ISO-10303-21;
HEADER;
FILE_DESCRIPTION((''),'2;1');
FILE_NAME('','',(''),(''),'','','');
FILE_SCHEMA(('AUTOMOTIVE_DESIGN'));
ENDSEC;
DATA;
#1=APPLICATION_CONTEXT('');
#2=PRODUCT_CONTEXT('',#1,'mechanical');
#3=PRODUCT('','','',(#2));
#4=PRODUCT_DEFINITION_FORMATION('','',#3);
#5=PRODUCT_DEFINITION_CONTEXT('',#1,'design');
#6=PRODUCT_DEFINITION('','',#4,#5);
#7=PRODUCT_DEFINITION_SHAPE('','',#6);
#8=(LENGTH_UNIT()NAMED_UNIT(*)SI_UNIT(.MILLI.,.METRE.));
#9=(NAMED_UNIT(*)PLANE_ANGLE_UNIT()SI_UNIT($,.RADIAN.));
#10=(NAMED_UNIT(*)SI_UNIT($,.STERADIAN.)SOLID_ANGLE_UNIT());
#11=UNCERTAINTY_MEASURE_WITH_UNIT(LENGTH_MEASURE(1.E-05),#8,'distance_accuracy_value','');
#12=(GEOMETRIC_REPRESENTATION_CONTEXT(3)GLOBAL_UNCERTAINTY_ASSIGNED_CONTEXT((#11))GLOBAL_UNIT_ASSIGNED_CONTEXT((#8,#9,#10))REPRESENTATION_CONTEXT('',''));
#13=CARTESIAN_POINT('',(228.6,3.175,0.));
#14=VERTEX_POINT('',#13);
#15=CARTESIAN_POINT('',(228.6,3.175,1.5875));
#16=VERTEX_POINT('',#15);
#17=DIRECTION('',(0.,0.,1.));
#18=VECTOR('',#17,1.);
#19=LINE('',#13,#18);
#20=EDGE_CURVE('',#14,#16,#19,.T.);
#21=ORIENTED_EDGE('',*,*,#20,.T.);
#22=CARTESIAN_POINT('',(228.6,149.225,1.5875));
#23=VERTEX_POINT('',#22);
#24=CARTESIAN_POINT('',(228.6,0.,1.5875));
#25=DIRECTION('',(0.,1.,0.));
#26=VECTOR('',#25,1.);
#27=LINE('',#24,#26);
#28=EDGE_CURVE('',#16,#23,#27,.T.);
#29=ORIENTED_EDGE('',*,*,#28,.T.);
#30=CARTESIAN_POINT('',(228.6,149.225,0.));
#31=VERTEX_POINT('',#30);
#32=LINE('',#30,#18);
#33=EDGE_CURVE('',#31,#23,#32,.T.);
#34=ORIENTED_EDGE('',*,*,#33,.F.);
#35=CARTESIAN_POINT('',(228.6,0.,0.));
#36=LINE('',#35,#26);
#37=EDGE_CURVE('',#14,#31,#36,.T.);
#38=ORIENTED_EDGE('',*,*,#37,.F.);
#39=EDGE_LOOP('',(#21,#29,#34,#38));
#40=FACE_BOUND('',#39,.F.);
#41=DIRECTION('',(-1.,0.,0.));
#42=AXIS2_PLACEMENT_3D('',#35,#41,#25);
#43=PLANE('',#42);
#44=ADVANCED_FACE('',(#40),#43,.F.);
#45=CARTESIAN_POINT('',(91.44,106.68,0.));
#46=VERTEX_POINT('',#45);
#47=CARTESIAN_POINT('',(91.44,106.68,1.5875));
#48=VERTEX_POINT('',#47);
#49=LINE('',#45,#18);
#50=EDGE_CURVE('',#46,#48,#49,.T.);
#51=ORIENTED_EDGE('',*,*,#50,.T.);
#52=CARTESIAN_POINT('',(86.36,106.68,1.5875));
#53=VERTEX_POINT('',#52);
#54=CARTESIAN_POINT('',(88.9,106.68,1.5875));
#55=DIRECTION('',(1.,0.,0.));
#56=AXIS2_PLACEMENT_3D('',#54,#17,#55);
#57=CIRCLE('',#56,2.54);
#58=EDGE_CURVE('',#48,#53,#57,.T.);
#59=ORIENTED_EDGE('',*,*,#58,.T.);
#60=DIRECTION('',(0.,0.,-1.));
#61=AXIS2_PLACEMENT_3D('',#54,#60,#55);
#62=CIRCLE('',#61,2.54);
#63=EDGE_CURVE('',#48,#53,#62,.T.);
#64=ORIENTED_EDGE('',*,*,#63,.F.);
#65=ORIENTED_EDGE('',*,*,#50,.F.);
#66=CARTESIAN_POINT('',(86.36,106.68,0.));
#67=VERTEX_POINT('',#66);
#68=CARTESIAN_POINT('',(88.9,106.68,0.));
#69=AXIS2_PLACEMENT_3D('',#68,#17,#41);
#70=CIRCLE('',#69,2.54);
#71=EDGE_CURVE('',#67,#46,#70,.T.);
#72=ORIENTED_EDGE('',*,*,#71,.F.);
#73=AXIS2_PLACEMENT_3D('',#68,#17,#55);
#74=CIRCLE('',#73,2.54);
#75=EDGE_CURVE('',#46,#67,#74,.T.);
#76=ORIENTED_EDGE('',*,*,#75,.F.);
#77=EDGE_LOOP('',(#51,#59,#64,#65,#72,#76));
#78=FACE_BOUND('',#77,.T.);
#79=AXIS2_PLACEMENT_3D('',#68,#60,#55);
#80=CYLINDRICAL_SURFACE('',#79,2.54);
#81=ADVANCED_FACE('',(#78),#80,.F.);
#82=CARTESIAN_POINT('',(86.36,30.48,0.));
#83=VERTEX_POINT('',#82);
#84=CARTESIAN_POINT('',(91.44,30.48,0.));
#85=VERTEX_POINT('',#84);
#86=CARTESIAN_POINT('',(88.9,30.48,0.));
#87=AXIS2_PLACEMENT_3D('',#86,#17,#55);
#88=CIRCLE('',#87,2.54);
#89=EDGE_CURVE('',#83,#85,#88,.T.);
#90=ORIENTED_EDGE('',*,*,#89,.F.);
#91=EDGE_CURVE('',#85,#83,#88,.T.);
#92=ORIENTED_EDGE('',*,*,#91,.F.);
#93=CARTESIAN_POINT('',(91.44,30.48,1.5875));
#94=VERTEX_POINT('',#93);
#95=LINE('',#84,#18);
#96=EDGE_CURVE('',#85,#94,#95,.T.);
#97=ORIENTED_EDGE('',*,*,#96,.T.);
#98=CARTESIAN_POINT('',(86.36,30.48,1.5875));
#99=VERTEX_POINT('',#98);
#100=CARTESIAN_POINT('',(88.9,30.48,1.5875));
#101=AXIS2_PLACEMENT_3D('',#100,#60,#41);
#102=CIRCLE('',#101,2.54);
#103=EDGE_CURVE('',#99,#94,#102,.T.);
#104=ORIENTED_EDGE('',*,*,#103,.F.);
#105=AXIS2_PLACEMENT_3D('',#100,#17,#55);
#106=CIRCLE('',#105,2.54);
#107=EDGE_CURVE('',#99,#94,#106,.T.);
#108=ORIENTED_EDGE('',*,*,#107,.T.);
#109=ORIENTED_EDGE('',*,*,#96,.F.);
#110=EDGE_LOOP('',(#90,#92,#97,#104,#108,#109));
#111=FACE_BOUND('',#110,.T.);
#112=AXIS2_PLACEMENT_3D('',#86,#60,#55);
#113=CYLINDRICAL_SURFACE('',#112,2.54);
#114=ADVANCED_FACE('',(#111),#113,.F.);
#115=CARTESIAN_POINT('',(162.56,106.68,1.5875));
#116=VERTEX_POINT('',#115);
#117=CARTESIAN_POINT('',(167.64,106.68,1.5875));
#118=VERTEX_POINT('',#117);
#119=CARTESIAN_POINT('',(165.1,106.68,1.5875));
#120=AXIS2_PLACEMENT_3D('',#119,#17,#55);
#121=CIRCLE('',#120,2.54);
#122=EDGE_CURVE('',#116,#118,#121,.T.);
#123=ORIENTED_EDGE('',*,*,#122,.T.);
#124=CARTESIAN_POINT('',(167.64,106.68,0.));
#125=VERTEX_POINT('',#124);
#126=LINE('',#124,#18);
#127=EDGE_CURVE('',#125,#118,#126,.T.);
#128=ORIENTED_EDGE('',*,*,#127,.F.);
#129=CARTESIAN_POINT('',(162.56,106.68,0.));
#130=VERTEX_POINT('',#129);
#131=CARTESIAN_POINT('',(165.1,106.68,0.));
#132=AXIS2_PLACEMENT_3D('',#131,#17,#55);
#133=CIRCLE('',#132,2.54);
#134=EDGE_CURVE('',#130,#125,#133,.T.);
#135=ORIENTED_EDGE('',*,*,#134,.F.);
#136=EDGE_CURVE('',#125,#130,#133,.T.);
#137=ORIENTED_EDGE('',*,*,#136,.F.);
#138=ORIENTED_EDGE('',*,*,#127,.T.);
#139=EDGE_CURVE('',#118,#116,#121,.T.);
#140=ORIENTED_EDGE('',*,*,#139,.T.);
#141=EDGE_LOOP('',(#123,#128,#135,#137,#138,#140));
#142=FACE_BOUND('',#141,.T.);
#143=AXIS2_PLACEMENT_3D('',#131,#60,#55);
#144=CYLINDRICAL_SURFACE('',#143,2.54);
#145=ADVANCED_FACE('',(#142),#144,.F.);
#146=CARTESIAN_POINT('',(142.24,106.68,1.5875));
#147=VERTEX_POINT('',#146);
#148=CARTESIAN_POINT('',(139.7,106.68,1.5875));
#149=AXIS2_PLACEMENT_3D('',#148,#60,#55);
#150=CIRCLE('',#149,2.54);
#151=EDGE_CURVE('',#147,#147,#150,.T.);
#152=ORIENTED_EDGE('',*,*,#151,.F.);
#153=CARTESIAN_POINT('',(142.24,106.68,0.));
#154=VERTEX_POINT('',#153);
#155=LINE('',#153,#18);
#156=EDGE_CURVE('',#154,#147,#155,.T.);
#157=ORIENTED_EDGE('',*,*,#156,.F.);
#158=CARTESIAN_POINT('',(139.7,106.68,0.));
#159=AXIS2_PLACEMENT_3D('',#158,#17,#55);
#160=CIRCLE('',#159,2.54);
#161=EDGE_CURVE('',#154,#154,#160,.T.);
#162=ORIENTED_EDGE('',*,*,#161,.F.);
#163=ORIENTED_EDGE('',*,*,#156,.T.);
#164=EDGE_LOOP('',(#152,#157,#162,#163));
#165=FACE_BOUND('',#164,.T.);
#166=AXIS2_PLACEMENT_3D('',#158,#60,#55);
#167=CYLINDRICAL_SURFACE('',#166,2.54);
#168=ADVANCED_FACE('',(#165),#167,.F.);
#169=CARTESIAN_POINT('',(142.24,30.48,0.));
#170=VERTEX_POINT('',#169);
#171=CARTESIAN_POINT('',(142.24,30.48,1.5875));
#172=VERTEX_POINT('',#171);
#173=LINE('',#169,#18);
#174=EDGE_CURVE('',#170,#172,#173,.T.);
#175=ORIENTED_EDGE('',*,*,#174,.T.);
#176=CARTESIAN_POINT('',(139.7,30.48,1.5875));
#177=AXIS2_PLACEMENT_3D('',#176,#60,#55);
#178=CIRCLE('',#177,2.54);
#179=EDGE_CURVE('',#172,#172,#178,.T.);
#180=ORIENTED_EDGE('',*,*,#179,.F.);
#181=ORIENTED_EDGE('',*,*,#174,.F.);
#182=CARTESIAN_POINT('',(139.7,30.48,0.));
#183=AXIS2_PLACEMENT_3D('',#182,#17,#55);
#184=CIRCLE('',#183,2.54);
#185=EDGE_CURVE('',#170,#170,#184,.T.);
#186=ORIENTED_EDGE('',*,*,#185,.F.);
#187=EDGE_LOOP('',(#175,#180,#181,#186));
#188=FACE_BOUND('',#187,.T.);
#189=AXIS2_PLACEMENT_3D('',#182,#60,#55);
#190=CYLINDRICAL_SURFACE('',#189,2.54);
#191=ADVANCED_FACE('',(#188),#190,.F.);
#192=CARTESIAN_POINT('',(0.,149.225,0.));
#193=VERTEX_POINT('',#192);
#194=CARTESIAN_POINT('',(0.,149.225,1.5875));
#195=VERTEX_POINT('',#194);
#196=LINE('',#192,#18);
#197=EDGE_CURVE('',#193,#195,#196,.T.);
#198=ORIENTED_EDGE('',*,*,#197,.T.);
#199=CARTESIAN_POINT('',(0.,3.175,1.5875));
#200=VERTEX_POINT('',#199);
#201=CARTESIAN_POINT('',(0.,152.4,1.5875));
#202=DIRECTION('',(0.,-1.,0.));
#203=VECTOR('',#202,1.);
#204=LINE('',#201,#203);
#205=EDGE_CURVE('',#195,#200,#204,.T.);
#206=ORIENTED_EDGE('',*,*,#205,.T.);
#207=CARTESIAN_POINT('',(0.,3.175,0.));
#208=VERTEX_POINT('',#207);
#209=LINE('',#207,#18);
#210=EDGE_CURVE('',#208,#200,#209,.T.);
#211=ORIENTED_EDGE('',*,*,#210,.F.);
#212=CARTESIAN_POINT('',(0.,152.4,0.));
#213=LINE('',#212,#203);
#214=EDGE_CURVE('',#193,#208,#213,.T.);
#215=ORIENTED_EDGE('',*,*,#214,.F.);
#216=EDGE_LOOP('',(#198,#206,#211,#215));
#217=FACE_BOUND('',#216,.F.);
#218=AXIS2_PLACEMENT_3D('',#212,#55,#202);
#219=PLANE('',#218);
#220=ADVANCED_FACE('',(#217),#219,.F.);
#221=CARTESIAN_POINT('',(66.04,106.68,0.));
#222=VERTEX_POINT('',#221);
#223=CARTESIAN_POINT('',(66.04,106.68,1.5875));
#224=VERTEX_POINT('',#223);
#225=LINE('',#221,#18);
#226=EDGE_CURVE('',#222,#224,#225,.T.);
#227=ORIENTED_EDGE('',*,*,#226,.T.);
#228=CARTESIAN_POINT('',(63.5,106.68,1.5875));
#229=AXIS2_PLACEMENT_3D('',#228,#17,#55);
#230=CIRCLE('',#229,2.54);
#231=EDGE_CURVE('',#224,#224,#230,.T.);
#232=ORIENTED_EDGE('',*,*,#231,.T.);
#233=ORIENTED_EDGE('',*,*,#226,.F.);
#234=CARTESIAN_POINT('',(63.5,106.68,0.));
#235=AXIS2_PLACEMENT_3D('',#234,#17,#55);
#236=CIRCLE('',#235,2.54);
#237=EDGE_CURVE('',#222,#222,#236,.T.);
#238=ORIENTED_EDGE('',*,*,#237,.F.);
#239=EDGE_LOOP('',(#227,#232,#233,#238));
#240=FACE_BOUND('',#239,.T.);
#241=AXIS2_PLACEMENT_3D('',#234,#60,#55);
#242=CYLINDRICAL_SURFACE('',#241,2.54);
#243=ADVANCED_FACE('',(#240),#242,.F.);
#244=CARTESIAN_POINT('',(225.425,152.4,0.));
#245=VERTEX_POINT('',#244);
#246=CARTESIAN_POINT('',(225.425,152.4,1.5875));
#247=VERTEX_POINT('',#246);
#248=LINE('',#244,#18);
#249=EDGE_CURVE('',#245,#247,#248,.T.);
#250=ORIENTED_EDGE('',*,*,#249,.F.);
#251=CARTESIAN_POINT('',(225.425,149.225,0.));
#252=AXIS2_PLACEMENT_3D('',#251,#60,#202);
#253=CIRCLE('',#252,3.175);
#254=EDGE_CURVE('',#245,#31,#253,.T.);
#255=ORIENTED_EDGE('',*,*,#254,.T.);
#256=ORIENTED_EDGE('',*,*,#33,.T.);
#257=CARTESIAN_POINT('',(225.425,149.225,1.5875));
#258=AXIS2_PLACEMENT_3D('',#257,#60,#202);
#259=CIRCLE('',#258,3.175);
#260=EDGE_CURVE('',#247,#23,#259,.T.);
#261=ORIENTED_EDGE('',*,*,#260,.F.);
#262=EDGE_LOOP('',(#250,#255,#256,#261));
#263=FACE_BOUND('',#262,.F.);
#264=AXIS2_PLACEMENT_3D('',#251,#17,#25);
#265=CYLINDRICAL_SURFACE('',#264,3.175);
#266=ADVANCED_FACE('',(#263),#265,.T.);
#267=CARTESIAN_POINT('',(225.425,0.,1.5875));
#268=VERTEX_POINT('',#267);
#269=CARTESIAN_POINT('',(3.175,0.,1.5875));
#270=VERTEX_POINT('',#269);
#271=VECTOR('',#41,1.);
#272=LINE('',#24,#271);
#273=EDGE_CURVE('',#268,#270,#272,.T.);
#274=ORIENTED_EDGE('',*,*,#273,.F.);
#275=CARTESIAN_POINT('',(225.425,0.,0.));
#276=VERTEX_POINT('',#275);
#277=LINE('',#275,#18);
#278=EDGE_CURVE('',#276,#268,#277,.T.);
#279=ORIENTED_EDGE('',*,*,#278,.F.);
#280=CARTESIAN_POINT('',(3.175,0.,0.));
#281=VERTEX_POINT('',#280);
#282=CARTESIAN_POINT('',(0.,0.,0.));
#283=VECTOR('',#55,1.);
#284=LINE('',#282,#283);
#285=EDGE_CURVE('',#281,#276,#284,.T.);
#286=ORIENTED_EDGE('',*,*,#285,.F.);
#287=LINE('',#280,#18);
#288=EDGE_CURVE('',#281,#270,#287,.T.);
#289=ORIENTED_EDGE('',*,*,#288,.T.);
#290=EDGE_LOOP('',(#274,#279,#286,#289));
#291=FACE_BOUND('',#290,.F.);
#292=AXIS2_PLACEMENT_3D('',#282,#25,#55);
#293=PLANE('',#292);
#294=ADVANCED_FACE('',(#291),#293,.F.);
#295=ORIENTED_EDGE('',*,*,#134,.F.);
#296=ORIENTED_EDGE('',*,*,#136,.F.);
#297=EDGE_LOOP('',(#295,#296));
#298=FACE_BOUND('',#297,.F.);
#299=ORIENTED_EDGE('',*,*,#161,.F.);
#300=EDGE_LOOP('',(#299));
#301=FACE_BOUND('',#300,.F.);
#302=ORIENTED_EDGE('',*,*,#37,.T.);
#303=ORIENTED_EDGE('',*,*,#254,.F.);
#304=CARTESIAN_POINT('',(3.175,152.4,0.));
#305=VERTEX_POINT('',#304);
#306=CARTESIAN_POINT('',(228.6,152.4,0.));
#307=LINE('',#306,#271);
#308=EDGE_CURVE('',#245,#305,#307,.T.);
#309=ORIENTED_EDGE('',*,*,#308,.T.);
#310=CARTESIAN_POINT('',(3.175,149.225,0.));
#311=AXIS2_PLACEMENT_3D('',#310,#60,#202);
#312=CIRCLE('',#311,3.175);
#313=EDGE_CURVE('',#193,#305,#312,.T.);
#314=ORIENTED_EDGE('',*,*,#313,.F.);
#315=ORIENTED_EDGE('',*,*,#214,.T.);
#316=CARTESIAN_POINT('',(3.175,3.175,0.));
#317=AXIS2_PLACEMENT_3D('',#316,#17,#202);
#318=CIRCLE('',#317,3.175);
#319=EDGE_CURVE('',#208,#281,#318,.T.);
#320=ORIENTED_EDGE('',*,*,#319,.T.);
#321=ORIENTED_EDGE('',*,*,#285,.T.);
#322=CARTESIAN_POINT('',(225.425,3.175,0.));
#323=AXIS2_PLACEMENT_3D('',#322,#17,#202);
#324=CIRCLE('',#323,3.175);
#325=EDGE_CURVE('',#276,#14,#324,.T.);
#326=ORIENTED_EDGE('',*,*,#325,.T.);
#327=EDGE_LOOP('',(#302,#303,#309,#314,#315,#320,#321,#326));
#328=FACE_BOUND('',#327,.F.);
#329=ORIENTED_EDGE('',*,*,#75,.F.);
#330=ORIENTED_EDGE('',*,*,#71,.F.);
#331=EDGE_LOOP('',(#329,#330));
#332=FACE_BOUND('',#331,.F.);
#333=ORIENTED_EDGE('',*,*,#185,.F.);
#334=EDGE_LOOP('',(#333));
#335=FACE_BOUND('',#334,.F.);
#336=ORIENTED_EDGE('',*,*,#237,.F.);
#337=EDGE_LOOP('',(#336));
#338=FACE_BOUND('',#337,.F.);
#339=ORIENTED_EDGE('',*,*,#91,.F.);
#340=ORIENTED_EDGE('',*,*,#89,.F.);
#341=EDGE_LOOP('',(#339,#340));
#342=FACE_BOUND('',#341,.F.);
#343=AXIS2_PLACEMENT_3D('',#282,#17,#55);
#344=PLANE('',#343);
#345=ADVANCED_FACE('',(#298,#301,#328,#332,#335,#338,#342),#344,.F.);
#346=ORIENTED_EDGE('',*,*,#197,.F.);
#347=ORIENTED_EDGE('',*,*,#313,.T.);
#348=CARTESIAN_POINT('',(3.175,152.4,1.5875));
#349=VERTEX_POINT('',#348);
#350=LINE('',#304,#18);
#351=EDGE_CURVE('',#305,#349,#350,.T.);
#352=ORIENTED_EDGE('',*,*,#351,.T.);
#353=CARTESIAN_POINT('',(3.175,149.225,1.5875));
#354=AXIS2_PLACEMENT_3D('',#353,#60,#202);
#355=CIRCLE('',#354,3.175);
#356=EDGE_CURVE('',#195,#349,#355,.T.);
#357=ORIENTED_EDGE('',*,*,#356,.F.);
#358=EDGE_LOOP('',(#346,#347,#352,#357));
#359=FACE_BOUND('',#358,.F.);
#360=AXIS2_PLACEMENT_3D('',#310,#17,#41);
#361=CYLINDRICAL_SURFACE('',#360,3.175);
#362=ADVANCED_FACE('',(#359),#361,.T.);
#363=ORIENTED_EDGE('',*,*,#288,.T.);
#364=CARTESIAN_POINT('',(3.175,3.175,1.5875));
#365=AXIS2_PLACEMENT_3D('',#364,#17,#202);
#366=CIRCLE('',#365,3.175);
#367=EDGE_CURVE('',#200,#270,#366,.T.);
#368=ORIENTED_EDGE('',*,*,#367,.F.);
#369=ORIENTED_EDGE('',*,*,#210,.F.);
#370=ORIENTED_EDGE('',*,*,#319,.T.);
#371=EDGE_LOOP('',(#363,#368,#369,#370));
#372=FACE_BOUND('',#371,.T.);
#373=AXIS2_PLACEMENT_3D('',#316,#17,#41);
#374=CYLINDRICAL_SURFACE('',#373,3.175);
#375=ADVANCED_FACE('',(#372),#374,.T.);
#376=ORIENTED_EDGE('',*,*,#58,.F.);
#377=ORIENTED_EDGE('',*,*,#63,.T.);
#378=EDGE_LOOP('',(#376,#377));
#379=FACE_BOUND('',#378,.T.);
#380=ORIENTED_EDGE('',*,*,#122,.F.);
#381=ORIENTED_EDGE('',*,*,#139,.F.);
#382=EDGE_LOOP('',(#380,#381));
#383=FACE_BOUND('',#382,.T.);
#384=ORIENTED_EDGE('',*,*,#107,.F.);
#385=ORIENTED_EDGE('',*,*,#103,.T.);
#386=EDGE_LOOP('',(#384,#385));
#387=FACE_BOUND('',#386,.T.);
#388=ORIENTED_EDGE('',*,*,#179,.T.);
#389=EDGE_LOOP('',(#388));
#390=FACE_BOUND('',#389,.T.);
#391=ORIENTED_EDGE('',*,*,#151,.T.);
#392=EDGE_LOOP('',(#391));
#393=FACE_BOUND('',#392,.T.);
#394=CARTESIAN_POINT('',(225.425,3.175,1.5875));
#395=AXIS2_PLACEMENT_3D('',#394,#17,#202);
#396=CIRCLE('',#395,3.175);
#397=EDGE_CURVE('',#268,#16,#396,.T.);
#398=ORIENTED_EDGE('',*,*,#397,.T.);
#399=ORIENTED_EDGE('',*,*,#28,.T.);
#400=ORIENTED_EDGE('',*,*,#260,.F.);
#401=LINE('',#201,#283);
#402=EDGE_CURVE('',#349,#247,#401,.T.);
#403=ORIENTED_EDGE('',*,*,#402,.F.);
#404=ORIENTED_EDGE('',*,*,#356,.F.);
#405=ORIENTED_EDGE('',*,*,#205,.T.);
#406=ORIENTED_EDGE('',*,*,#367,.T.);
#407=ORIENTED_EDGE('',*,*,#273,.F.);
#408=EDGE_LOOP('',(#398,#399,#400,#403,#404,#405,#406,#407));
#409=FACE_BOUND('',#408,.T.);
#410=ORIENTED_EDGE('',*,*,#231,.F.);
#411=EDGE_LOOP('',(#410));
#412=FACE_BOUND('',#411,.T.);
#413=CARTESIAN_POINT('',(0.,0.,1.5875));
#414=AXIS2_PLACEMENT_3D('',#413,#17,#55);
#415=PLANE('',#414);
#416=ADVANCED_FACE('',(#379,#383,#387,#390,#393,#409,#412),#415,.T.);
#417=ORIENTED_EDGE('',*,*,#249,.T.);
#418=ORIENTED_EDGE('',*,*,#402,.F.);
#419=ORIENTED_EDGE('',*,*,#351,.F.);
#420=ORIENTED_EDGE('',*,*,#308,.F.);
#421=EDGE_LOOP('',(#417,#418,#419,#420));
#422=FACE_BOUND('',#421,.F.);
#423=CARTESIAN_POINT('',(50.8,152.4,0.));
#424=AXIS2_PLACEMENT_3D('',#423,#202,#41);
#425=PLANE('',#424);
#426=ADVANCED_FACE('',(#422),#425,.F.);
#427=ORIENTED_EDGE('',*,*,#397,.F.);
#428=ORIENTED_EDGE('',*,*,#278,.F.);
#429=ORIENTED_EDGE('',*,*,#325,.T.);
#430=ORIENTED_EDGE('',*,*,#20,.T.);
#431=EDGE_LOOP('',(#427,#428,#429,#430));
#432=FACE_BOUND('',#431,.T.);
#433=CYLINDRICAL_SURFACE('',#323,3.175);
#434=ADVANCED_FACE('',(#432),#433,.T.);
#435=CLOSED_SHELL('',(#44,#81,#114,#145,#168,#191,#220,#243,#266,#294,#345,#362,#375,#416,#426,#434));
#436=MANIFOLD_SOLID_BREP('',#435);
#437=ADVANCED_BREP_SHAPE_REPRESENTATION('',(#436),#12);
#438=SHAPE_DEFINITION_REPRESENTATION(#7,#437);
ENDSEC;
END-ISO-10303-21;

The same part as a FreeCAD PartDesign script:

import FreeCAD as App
import Part
import Sketcher
Q = App.Units.Quantity


def edges_at(feature, points):
    """Names of the edges that pass closest to the given points."""
    edges = feature.Shape.Edges
    near = lambda p: min(range(len(edges)), key=lambda i: edges[i].distToShape(Part.Vertex(*p))[0])
    return sorted({f"Edge{near(p) + 1}" for p in points})

doc = App.newDocument("Part")
body = doc.addObject("PartDesign::Body", "Body")

# Sketch on XY plane
sketch1 = body.newObject("Sketcher::SketchObject", "Sketch")
sketch1.AttachmentSupport = (doc.getObject("XY_Plane"), [""])
sketch1.MapMode = "FlatFace"
sketch1.addGeometry(Part.LineSegment(App.Vector(0, 152.4, 0), App.Vector(0, 0, 0)), False)
sketch1.addGeometry(Part.LineSegment(App.Vector(0, 0, 0), App.Vector(228.6, 0, 0)), False)
sketch1.addGeometry(Part.LineSegment(App.Vector(228.6, 0, 0), App.Vector(228.6, 152.4, 0)), False)
sketch1.addGeometry(Part.LineSegment(App.Vector(228.6, 152.4, 0), App.Vector(0, 152.4, 0)), False)
sketch1.addGeometry(Part.Circle(App.Vector(88.9, 30.5, 0), App.Vector(0, 0, 1), 2.5), False)
sketch1.addGeometry(Part.Circle(App.Vector(139.7, 30.5, 0), App.Vector(0, 0, 1), 2.5), False)
sketch1.addGeometry(Part.Circle(App.Vector(139.7, 106.7, 0), App.Vector(0, 0, 1), 2.5), False)
sketch1.addGeometry(Part.Circle(App.Vector(88.9, 106.7, 0), App.Vector(0, 0, 1), 2.5), False)
sketch1.addGeometry(Part.Circle(App.Vector(63.5, 106.7, 0), App.Vector(0, 0, 1), 2.5), False)
sketch1.addGeometry(Part.Circle(App.Vector(165.1, 106.7, 0), App.Vector(0, 0, 1), 2.5), False)
sketch1.addConstraint(Sketcher.Constraint("Coincident", 0, 2, 1, 1))
sketch1.addConstraint(Sketcher.Constraint("Coincident", 1, 2, 2, 1))
sketch1.addConstraint(Sketcher.Constraint("Coincident", 2, 2, 3, 1))
sketch1.addConstraint(Sketcher.Constraint("Coincident", 3, 2, 0, 1))
sketch1.addConstraint(Sketcher.Constraint("Vertical", 0))
sketch1.addConstraint(Sketcher.Constraint("Horizontal", 1))
sketch1.addConstraint(Sketcher.Constraint("Vertical", 2))
sketch1.addConstraint(Sketcher.Constraint("Horizontal", 3))
sketch1.addConstraint(Sketcher.Constraint("Coincident", 0, 2, -1, 1))
sketch1.addConstraint(Sketcher.Constraint("Equal", 4, 5))
sketch1.addConstraint(Sketcher.Constraint("Equal", 5, 6))
sketch1.addConstraint(Sketcher.Constraint("Equal", 6, 7))
sketch1.addConstraint(Sketcher.Constraint("Equal", 7, 8))
sketch1.addConstraint(Sketcher.Constraint("Equal", 8, 9))
sketch1.addConstraint(Sketcher.Constraint("Horizontal", 4, 3, 5, 3))
sketch1.addConstraint(Sketcher.Constraint("Horizontal", 6, 3, 7, 3))
sketch1.addConstraint(Sketcher.Constraint("Horizontal", 7, 3, 8, 3))
sketch1.addConstraint(Sketcher.Constraint("Horizontal", 8, 3, 9, 3))
sketch1.addConstraint(Sketcher.Constraint("Vertical", 5, 3, 6, 3))
sketch1.addConstraint(Sketcher.Constraint("Vertical", 4, 3, 7, 3))
sketch1.addConstraint(Sketcher.Constraint("Diameter", 4, Q("0.2 in")))
sketch1.addConstraint(Sketcher.Constraint("DistanceX", 1, 1, 1, 2, Q("9 in")))
sketch1.addConstraint(Sketcher.Constraint("DistanceY", 0, 2, 0, 1, Q("6 in")))
sketch1.addConstraint(Sketcher.Constraint("DistanceX", 4, 3, 5, 3, Q("2 in")))
sketch1.addConstraint(Sketcher.Constraint("DistanceY", 5, 3, 6, 3, Q("3 in")))
sketch1.addConstraint(Sketcher.Constraint("DistanceX", 8, 3, 7, 3, Q("1 in")))
sketch1.addConstraint(Sketcher.Constraint("DistanceX", 6, 3, 9, 3, Q("1 in")))
sketch1.addConstraint(Sketcher.Constraint("DistanceY", -1, 1, 4, 3, Q("1.2 in")))
sketch1.addConstraint(Sketcher.Constraint("DistanceX", -1, 1, 4, 3, Q("3.5 in")))
pad1 = body.newObject("PartDesign::Pad", "Pad")
pad1.Profile = sketch1
pad1.Length = Q("0.0625 in")
doc.recompute()

fillet = body.newObject("PartDesign::Fillet", "Fillet")
fillet.Base = (pad1, edges_at(pad1, [
    (0, 152.4, 0.794),
    (228.6, 152.4, 0.794),
    (228.6, 0, 0.794),
    (0, 0, 0.794),
]))
fillet.Radius = Q("0.125 in")

doc.recompute()
